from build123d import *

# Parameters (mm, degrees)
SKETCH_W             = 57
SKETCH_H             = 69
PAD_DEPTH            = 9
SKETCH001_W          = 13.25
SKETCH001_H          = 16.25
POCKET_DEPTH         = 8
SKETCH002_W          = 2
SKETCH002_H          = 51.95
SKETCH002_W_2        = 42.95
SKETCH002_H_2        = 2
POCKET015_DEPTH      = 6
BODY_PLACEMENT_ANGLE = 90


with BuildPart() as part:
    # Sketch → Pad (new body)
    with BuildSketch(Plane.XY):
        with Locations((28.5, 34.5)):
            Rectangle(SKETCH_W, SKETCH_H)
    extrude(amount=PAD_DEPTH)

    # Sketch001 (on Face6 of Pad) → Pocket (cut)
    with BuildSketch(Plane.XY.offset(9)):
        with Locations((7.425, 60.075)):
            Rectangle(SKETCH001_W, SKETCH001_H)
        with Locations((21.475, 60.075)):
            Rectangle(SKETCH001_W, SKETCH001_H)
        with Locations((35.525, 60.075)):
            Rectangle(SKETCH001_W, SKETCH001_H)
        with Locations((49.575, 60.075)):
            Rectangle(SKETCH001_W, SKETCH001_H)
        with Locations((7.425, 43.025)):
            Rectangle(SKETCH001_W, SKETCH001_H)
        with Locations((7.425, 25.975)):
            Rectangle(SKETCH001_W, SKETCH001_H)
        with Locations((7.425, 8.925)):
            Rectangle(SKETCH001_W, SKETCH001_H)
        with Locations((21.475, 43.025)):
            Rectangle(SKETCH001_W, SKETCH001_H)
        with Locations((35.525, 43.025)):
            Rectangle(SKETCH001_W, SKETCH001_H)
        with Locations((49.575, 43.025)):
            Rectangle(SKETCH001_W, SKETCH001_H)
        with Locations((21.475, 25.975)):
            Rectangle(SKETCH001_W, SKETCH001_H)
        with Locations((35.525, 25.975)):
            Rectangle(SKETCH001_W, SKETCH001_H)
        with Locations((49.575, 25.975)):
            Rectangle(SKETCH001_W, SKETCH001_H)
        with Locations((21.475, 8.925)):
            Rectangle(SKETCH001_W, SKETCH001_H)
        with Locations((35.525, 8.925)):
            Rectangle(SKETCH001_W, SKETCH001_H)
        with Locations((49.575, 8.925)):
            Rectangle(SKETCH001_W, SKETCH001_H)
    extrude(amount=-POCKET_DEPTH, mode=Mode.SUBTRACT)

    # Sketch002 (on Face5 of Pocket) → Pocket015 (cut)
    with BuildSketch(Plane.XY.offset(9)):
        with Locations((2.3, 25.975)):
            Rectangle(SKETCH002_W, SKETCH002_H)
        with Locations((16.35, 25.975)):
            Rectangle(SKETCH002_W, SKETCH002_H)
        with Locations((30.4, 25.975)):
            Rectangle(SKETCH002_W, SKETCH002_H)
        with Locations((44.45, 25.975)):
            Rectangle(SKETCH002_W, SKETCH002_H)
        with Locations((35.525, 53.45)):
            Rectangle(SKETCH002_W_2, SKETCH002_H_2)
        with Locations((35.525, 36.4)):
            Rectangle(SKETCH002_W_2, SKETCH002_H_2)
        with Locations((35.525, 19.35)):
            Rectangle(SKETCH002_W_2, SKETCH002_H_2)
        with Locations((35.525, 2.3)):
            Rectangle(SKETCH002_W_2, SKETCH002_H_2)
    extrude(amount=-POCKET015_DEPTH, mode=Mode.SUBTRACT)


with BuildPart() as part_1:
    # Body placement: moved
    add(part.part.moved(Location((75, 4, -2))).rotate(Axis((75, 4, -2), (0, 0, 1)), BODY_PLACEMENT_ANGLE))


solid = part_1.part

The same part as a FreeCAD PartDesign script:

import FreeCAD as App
import Part
import Sketcher

doc = App.newDocument("Part")
body = doc.addObject("PartDesign::Body", "Body")

# Sketch on XY plane
sketch1 = body.newObject("Sketcher::SketchObject", "Sketch")
sketch1.AttachmentSupport = (doc.getObject("XY_Plane"), [""])
sketch1.MapMode = "FlatFace"
sketch1.addGeometry([
    Part.LineSegment(App.Vector(0, 69, 0), App.Vector(0, 0, 0)),
    Part.LineSegment(App.Vector(0, 0, 0), App.Vector(57, 0, 0)),
    Part.LineSegment(App.Vector(57, 0, 0), App.Vector(57, 69, 0)),
    Part.LineSegment(App.Vector(57, 69, 0), App.Vector(0, 69, 0)),
], False)
sketch1.addConstraint([
    Sketcher.Constraint("Coincident", 0, 2, 1, 1),
    Sketcher.Constraint("Coincident", 1, 2, 2, 1),
    Sketcher.Constraint("Coincident", 2, 2, 3, 1),
    Sketcher.Constraint("Coincident", 3, 2, 0, 1),
    Sketcher.Constraint("Vertical", 0),
    Sketcher.Constraint("Horizontal", 1),
    Sketcher.Constraint("Vertical", 2),
    Sketcher.Constraint("Horizontal", 3),
    Sketcher.Constraint("Coincident", 0, 2, -1, 1),
    Sketcher.Constraint("DistanceX", 1, 1, 1, 2, 57.0),
    Sketcher.Constraint("DistanceY", 0, 2, 0, 1, 69.0),
])
pad1 = body.newObject("PartDesign::Pad", "Pad")
pad1.Profile = sketch1
pad1.Length = 9

# Sketch on XY plane
sketch2 = body.newObject("Sketcher::SketchObject", "Sketch001")
sketch2.AttachmentSupport = (doc.getObject("XY_Plane"), [""])
sketch2.MapMode = "FlatFace"
sketch2.AttachmentOffset = App.Placement(App.Vector(0, 0, 9), App.Rotation())
sketch2.addGeometry([
    Part.LineSegment(App.Vector(1, 68, 0), App.Vector(1, 52, 0)),  # 0
    Part.LineSegment(App.Vector(1, 52, 0), App.Vector(14, 52, 0)),  # 1
    Part.LineSegment(App.Vector(14, 52, 0), App.Vector(14, 68, 0)),  # 2
    Part.LineSegment(App.Vector(14, 68, 0), App.Vector(1, 68, 0)),  # 3
    Part.LineSegment(App.Vector(15, 68, 0), App.Vector(15, 52, 0)),  # 4
    Part.LineSegment(App.Vector(15, 52, 0), App.Vector(28, 52, 0)),  # 5
    Part.LineSegment(App.Vector(28, 52, 0), App.Vector(28, 68, 0)),  # 6
    Part.LineSegment(App.Vector(28, 68, 0), App.Vector(15, 68, 0)),  # 7
    Part.LineSegment(App.Vector(29, 68, 0), App.Vector(29, 52, 0)),  # 8
    Part.LineSegment(App.Vector(29, 52, 0), App.Vector(42, 52, 0)),  # 9
    Part.LineSegment(App.Vector(42, 52, 0), App.Vector(42, 68, 0)),  # 10
    Part.LineSegment(App.Vector(42, 68, 0), App.Vector(29, 68, 0)),  # 11
    Part.LineSegment(App.Vector(43, 68, 0), App.Vector(43, 52, 0)),  # 12
    Part.LineSegment(App.Vector(43, 52, 0), App.Vector(56, 52, 0)),  # 13
    Part.LineSegment(App.Vector(56, 52, 0), App.Vector(56, 68, 0)),  # 14
    Part.LineSegment(App.Vector(56, 68, 0), App.Vector(43, 68, 0)),  # 15
    Part.LineSegment(App.Vector(1, 51, 0), App.Vector(1, 35, 0)),  # 16
    Part.LineSegment(App.Vector(1, 35, 0), App.Vector(14, 35, 0)),  # 17
    Part.LineSegment(App.Vector(14, 35, 0), App.Vector(14, 51, 0)),  # 18
    Part.LineSegment(App.Vector(14, 51, 0), App.Vector(1, 51, 0)),  # 19
    Part.LineSegment(App.Vector(1, 34, 0), App.Vector(1, 18, 0)),  # 20
    Part.LineSegment(App.Vector(1, 18, 0), App.Vector(14, 18, 0)),  # 21
    Part.LineSegment(App.Vector(14, 18, 0), App.Vector(14, 34, 0)),  # 22
    Part.LineSegment(App.Vector(14, 34, 0), App.Vector(1, 34, 0)),  # 23
    Part.LineSegment(App.Vector(1, 17, 0), App.Vector(1, 1, 0)),  # 24
    Part.LineSegment(App.Vector(1, 1, 0), App.Vector(14, 1, 0)),  # 25
    Part.LineSegment(App.Vector(14, 1, 0), App.Vector(14, 17, 0)),  # 26
    Part.LineSegment(App.Vector(14, 17, 0), App.Vector(1, 17, 0)),  # 27
    Part.LineSegment(App.Vector(15, 51, 0), App.Vector(15, 35, 0)),  # 28
    Part.LineSegment(App.Vector(15, 35, 0), App.Vector(28, 35, 0)),  # 29
    Part.LineSegment(App.Vector(28, 35, 0), App.Vector(28, 51, 0)),  # 30
    Part.LineSegment(App.Vector(28, 51, 0), App.Vector(15, 51, 0)),  # 31
    Part.LineSegment(App.Vector(29, 51, 0), App.Vector(29, 35, 0)),  # 32
    Part.LineSegment(App.Vector(29, 35, 0), App.Vector(42, 35, 0)),  # 33
    Part.LineSegment(App.Vector(42, 35, 0), App.Vector(42, 51, 0)),  # 34
    Part.LineSegment(App.Vector(42, 51, 0), App.Vector(29, 51, 0)),  # 35
    Part.LineSegment(App.Vector(43, 51, 0), App.Vector(43, 35, 0)),  # 36
    Part.LineSegment(App.Vector(43, 35, 0), App.Vector(56, 35, 0)),  # 37
    Part.LineSegment(App.Vector(56, 35, 0), App.Vector(56, 51, 0)),  # 38
    Part.LineSegment(App.Vector(56, 51, 0), App.Vector(43, 51, 0)),  # 39
    Part.LineSegment(App.Vector(15, 34, 0), App.Vector(15, 18, 0)),  # 40
    Part.LineSegment(App.Vector(15, 18, 0), App.Vector(28, 18, 0)),  # 41
    Part.LineSegment(App.Vector(28, 18, 0), App.Vector(28, 34, 0)),  # 42
    Part.LineSegment(App.Vector(28, 34, 0), App.Vector(15, 34, 0)),  # 43
    Part.LineSegment(App.Vector(29, 34, 0), App.Vector(29, 18, 0)),  # 44
    Part.LineSegment(App.Vector(29, 18, 0), App.Vector(42, 18, 0)),  # 45
    Part.LineSegment(App.Vector(42, 18, 0), App.Vector(42, 34, 0)),  # 46
    Part.LineSegment(App.Vector(42, 34, 0), App.Vector(29, 34, 0)),  # 47
    Part.LineSegment(App.Vector(43, 34, 0), App.Vector(43, 18, 0)),  # 48
    Part.LineSegment(App.Vector(43, 18, 0), App.Vector(56, 18, 0)),  # 49
    Part.LineSegment(App.Vector(56, 18, 0), App.Vector(56, 34, 0)),  # 50
    Part.LineSegment(App.Vector(56, 34, 0), App.Vector(43, 34, 0)),  # 51
    Part.LineSegment(App.Vector(15, 17, 0), App.Vector(15, 1, 0)),  # 52
    Part.LineSegment(App.Vector(15, 1, 0), App.Vector(28, 1, 0)),  # 53
    Part.LineSegment(App.Vector(28, 1, 0), App.Vector(28, 17, 0)),  # 54
    Part.LineSegment(App.Vector(28, 17, 0), App.Vector(15, 17, 0)),  # 55
    Part.LineSegment(App.Vector(29, 17, 0), App.Vector(29, 1, 0)),  # 56
    Part.LineSegment(App.Vector(29, 1, 0), App.Vector(42, 1, 0)),  # 57
    Part.LineSegment(App.Vector(42, 1, 0), App.Vector(42, 17, 0)),  # 58
    Part.LineSegment(App.Vector(42, 17, 0), App.Vector(29, 17, 0)),  # 59
    Part.LineSegment(App.Vector(43, 17, 0), App.Vector(43, 1, 0)),  # 60
    Part.LineSegment(App.Vector(43, 1, 0), App.Vector(56, 1, 0)),  # 61
    Part.LineSegment(App.Vector(56, 1, 0), App.Vector(56, 17, 0)),  # 62
    Part.LineSegment(App.Vector(56, 17, 0), App.Vector(43, 17, 0)),  # 63
], False)
sketch2.addConstraint([
    Sketcher.Constraint("Coincident", 0, 2, 1, 1),
    Sketcher.Constraint("Coincident", 1, 2, 2, 1),
    Sketcher.Constraint("Coincident", 2, 2, 3, 1),
    Sketcher.Constraint("Coincident", 3, 2, 0, 1),
    Sketcher.Constraint("Coincident", 4, 2, 5, 1),
    Sketcher.Constraint("Coincident", 5, 2, 6, 1),
    Sketcher.Constraint("Coincident", 6, 2, 7, 1),
    Sketcher.Constraint("Coincident", 7, 2, 4, 1),
    Sketcher.Constraint("Coincident", 8, 2, 9, 1),
    Sketcher.Constraint("Coincident", 9, 2, 10, 1),
    Sketcher.Constraint("Coincident", 10, 2, 11, 1),
    Sketcher.Constraint("Coincident", 11, 2, 8, 1),
    Sketcher.Constraint("Coincident", 12, 2, 13, 1),
    Sketcher.Constraint("Coincident", 13, 2, 14, 1),
    Sketcher.Constraint("Coincident", 14, 2, 15, 1),
    Sketcher.Constraint("Coincident", 15, 2, 12, 1),
    Sketcher.Constraint("Coincident", 16, 2, 17, 1),
    Sketcher.Constraint("Coincident", 17, 2, 18, 1),
    Sketcher.Constraint("Coincident", 18, 2, 19, 1),
    Sketcher.Constraint("Coincident", 19, 2, 16, 1),
    Sketcher.Constraint("Coincident", 20, 2, 21, 1),
    Sketcher.Constraint("Coincident", 21, 2, 22, 1),
    Sketcher.Constraint("Coincident", 22, 2, 23, 1),
    Sketcher.Constraint("Coincident", 23, 2, 20, 1),
    Sketcher.Constraint("Coincident", 24, 2, 25, 1),
    Sketcher.Constraint("Coincident", 25, 2, 26, 1),
    Sketcher.Constraint("Coincident", 26, 2, 27, 1),
    Sketcher.Constraint("Coincident", 27, 2, 24, 1),
    Sketcher.Constraint("Coincident", 28, 2, 29, 1),
    Sketcher.Constraint("Coincident", 29, 2, 30, 1),
    Sketcher.Constraint("Coincident", 30, 2, 31, 1),
    Sketcher.Constraint("Coincident", 31, 2, 28, 1),
    Sketcher.Constraint("Coincident", 32, 2, 33, 1),
    Sketcher.Constraint("Coincident", 33, 2, 34, 1),
    Sketcher.Constraint("Coincident", 34, 2, 35, 1),
    Sketcher.Constraint("Coincident", 35, 2, 32, 1),
    Sketcher.Constraint("Coincident", 36, 2, 37, 1),
    Sketcher.Constraint("Coincident", 37, 2, 38, 1),
    Sketcher.Constraint("Coincident", 38, 2, 39, 1),
    Sketcher.Constraint("Coincident", 39, 2, 36, 1),
    Sketcher.Constraint("Coincident", 40, 2, 41, 1),
    Sketcher.Constraint("Coincident", 41, 2, 42, 1),
    Sketcher.Constraint("Coincident", 42, 2, 43, 1),
    Sketcher.Constraint("Coincident", 43, 2, 40, 1),
    Sketcher.Constraint("Coincident", 44, 2, 45, 1),
    Sketcher.Constraint("Coincident", 45, 2, 46, 1),
    Sketcher.Constraint("Coincident", 46, 2, 47, 1),
    Sketcher.Constraint("Coincident", 47, 2, 44, 1),
    Sketcher.Constraint("Coincident", 48, 2, 49, 1),
    Sketcher.Constraint("Coincident", 49, 2, 50, 1),
    Sketcher.Constraint("Coincident", 50, 2, 51, 1),
    Sketcher.Constraint("Coincident", 51, 2, 48, 1),
    Sketcher.Constraint("Coincident", 52, 2, 53, 1),
    Sketcher.Constraint("Coincident", 53, 2, 54, 1),
    Sketcher.Constraint("Coincident", 54, 2, 55, 1),
    Sketcher.Constraint("Coincident", 55, 2, 52, 1),
    Sketcher.Constraint("Coincident", 56, 2, 57, 1),
    Sketcher.Constraint("Coincident", 57, 2, 58, 1),
    Sketcher.Constraint("Coincident", 58, 2, 59, 1),
    Sketcher.Constraint("Coincident", 59, 2, 56, 1),
    Sketcher.Constraint("Coincident", 60, 2, 61, 1),
    Sketcher.Constraint("Coincident", 61, 2, 62, 1),
    Sketcher.Constraint("Coincident", 62, 2, 63, 1),
    Sketcher.Constraint("Coincident", 63, 2, 60, 1),
    Sketcher.Constraint("Vertical", 0),
    Sketcher.Constraint("Horizontal", 1),
    Sketcher.Constraint("Vertical", 2),
    Sketcher.Constraint("Horizontal", 3),
    Sketcher.Constraint("Vertical", 4),
    Sketcher.Constraint("Horizontal", 5),
    Sketcher.Constraint("Vertical", 6),
    Sketcher.Constraint("Horizontal", 7),
    Sketcher.Constraint("Vertical", 8),
    Sketcher.Constraint("Horizontal", 9),
    Sketcher.Constraint("Vertical", 10),
    Sketcher.Constraint("Horizontal", 11),
    Sketcher.Constraint("Vertical", 12),
    Sketcher.Constraint("Horizontal", 13),
    Sketcher.Constraint("Vertical", 14),
    Sketcher.Constraint("Horizontal", 15),
    Sketcher.Constraint("Vertical", 16),
    Sketcher.Constraint("Horizontal", 17),
    Sketcher.Constraint("Vertical", 18),
    Sketcher.Constraint("Horizontal", 19),
    Sketcher.Constraint("Vertical", 20),
    Sketcher.Constraint("Horizontal", 21),
    Sketcher.Constraint("Vertical", 22),
    Sketcher.Constraint("Horizontal", 23),
    Sketcher.Constraint("Vertical", 24),
    Sketcher.Constraint("Horizontal", 25),
    Sketcher.Constraint("Vertical", 26),
    Sketcher.Constraint("Horizontal", 27),
    Sketcher.Constraint("Vertical", 28),
    Sketcher.Constraint("Horizontal", 29),
    Sketcher.Constraint("Vertical", 30),
    Sketcher.Constraint("Horizontal", 31),
    Sketcher.Constraint("Vertical", 32),
    Sketcher.Constraint("Horizontal", 33),
    Sketcher.Constraint("Vertical", 34),
    Sketcher.Constraint("Horizontal", 35),
    Sketcher.Constraint("Vertical", 36),
    Sketcher.Constraint("Horizontal", 37),
    Sketcher.Constraint("Vertical", 38),
    Sketcher.Constraint("Horizontal", 39),
    Sketcher.Constraint("Vertical", 40),
    Sketcher.Constraint("Horizontal", 41),
    Sketcher.Constraint("Vertical", 42),
    Sketcher.Constraint("Horizontal", 43),
    Sketcher.Constraint("Vertical", 44),
    Sketcher.Constraint("Horizontal", 45),
    Sketcher.Constraint("Vertical", 46),
    Sketcher.Constraint("Horizontal", 47),
    Sketcher.Constraint("Vertical", 48),
    Sketcher.Constraint("Horizontal", 49),
    Sketcher.Constraint("Vertical", 50),
    Sketcher.Constraint("Horizontal", 51),
    Sketcher.Constraint("Vertical", 52),
    Sketcher.Constraint("Horizontal", 53),
    Sketcher.Constraint("Vertical", 54),
    Sketcher.Constraint("Horizontal", 55),
    Sketcher.Constraint("Vertical", 56),
    Sketcher.Constraint("Horizontal", 57),
    Sketcher.Constraint("Vertical", 58),
    Sketcher.Constraint("Horizontal", 59),
    Sketcher.Constraint("Vertical", 60),
    Sketcher.Constraint("Horizontal", 61),
    Sketcher.Constraint("Vertical", 62),
    Sketcher.Constraint("Horizontal", 63),
    Sketcher.Constraint("Horizontal", 1, 2, 4, 2),
    Sketcher.Constraint("Horizontal", 3, 2, 6, 2),
    Sketcher.Constraint("Horizontal", 5, 2, 8, 2),
    Sketcher.Constraint("Horizontal", 7, 2, 10, 2),
    Sketcher.Constraint("Horizontal", 9, 2, 12, 2),
    Sketcher.Constraint("Horizontal", 11, 2, 14, 2),
    Sketcher.Constraint("Horizontal", 17, 2, 28, 2),
    Sketcher.Constraint("Horizontal", 19, 2, 30, 2),
    Sketcher.Constraint("Horizontal", 29, 2, 32, 2),
    Sketcher.Constraint("Horizontal", 31, 2, 34, 2),
    Sketcher.Constraint("Horizontal", 33, 2, 36, 2),
    Sketcher.Constraint("Horizontal", 35, 2, 38, 2),
    Sketcher.Constraint("Horizontal", 21, 2, 40, 2),
    Sketcher.Constraint("Horizontal", 23, 2, 42, 2),
    Sketcher.Constraint("Horizontal", 41, 2, 44, 2),
    Sketcher.Constraint("Horizontal", 43, 2, 46, 2),
    Sketcher.Constraint("Horizontal", 45, 2, 48, 2),
    Sketcher.Constraint("Horizontal", 47, 2, 50, 2),
    Sketcher.Constraint("Horizontal", 25, 2, 52, 2),
    Sketcher.Constraint("Horizontal", 27, 2, 54, 2),
    Sketcher.Constraint("Horizontal", 53, 2, 56, 2),
    Sketcher.Constraint("Horizontal", 55, 2, 58, 2),
    Sketcher.Constraint("Horizontal", 57, 2, 60, 2),
    Sketcher.Constraint("Horizontal", 59, 2, 62, 2),
    Sketcher.Constraint("Vertical", 3, 2, 16, 2),
    Sketcher.Constraint("Vertical", 2, 2, 17, 2),
    Sketcher.Constraint("Vertical", 19, 2, 20, 2),
    Sketcher.Constraint("Vertical", 18, 2, 21, 2),
    Sketcher.Constraint("Vertical", 23, 2, 24, 2),
    Sketcher.Constraint("Vertical", 22, 2, 25, 2),
    Sketcher.Constraint("Vertical", 7, 2, 28, 2),
    Sketcher.Constraint("Vertical", 6, 2, 29, 2),
    Sketcher.Constraint("Vertical", 11, 2, 32, 2),
    Sketcher.Constraint("Vertical", 10, 2, 33, 2),
    Sketcher.Constraint("Vertical", 15, 2, 36, 2),
    Sketcher.Constraint("Vertical", 14, 2, 37, 2),
    Sketcher.Constraint("Vertical", 31, 2, 40, 2),
    Sketcher.Constraint("Vertical", 30, 2, 41, 2),
    Sketcher.Constraint("Vertical", 35, 2, 44, 2),
    Sketcher.Constraint("Vertical", 34, 2, 45, 2),
    Sketcher.Constraint("Vertical", 39, 2, 48, 2),
    Sketcher.Constraint("Vertical", 38, 2, 49, 2),
    Sketcher.Constraint("Vertical", 43, 2, 52, 2),
    Sketcher.Constraint("Vertical", 42, 2, 53, 2),
    Sketcher.Constraint("Vertical", 47, 2, 56, 2),
    Sketcher.Constraint("Vertical", 46, 2, 57, 2),
    Sketcher.Constraint("Vertical", 51, 2, 60, 2),
    Sketcher.Constraint("Vertical", 50, 2, 61, 2),
    Sketcher.Constraint("Equal", 3, 5),
    Sketcher.Constraint("Equal", 7, 9),
    Sketcher.Constraint("Equal", 11, 13),
    Sketcher.Constraint("Equal", 14, 16),
    Sketcher.Constraint("Equal", 18, 20),
    Sketcher.Constraint("Equal", 22, 24),
    Sketcher.Constraint("DistanceX", 1, 1, 1, 2, 13.25),
    Sketcher.Constraint("DistanceY", 0, 2, 0, 1, 16.25),
    Sketcher.Constraint("DistanceX", -1, 1, 0, 2, 0.8),
    Sketcher.Constraint("DistanceY", -1, 1, 2, 2, 68.2),
    Sketcher.Constraint("DistanceX", -1, 1, 5, 2, 28.1),
    Sketcher.Constraint("DistanceX", -1, 1, 8, 2, 28.9),
    Sketcher.Constraint("DistanceX", -1, 1, 13, 2, 56.2),
    Sketcher.Constraint("DistanceY", -1, 1, 16, 2, 34.9),
    Sketcher.Constraint("DistanceY", -1, 1, 22, 2, 34.1),
    Sketcher.Constraint("DistanceY", -1, 1, 24, 2, 0.8),
])
pocket1 = body.newObject("PartDesign::Pocket", "Pocket")
pocket1.Profile = sketch2
pocket1.Length = 8

# Sketch on XY plane
sketch3 = body.newObject("Sketcher::SketchObject", "Sketch002")
sketch3.AttachmentSupport = (doc.getObject("XY_Plane"), [""])
sketch3.MapMode = "FlatFace"
sketch3.AttachmentOffset = App.Placement(App.Vector(0, 0, 9), App.Rotation())
sketch3.addGeometry([
    Part.LineSegment(App.Vector(1.3, 52, 0), App.Vector(1.3, 0, 0)),  # 0
    Part.LineSegment(App.Vector(1.3, 0, 0), App.Vector(3.3, 0, 0)),  # 1
    Part.LineSegment(App.Vector(3.3, 0, 0), App.Vector(3.3, 52, 0)),  # 2
    Part.LineSegment(App.Vector(3.3, 52, 0), App.Vector(1.3, 52, 0)),  # 3
    Part.LineSegment(App.Vector(15.3, 1.3, 0), App.Vector(15.3, 0, 0)),  # 4
    Part.LineSegment(App.Vector(15.3, 0, 0), App.Vector(17.4, 0, 0)),  # 5
    Part.LineSegment(App.Vector(17.4, 0, 0), App.Vector(17.4, 1.3, 0)),  # 6
    Part.LineSegment(App.Vector(17.4, 1.3, 0), App.Vector(29.4, 1.3, 0)),  # 7
    Part.LineSegment(App.Vector(29.4, 1.3, 0), App.Vector(29.4, 0, 0)),  # 8
    Part.LineSegment(App.Vector(29.4, 0, 0), App.Vector(31.4, 0, 0)),  # 9
    Part.LineSegment(App.Vector(31.4, 0, 0), App.Vector(31.4, 1.3, 0)),  # 10
    Part.LineSegment(App.Vector(31.4, 1.3, 0), App.Vector(43.5, 1.3, 0)),  # 11
    Part.LineSegment(App.Vector(43.5, 1.3, 0), App.Vector(43.5, 0, 0)),  # 12
    Part.LineSegment(App.Vector(43.5, 0, 0), App.Vector(45.5, 0, 0)),  # 13
    Part.LineSegment(App.Vector(45.5, 0, 0), App.Vector(45.5, 1.3, 0)),  # 14
    Part.LineSegment(App.Vector(45.5, 1.3, 0), App.Vector(57, 1.3, 0)),  # 15
    Part.LineSegment(App.Vector(57, 1.3, 0), App.Vector(57, 3.3, 0)),  # 16
    Part.LineSegment(App.Vector(57, 3.3, 0), App.Vector(45.5, 3.3, 0)),  # 17
    Part.LineSegment(App.Vector(45.5, 3.3, 0), App.Vector(45.5, 18.4, 0)),  # 18
    Part.LineSegment(App.Vector(45.5, 18.4, 0), App.Vector(57, 18.4, 0)),  # 19
    Part.LineSegment(App.Vector(57, 18.4, 0), App.Vector(57, 20.4, 0)),  # 20
    Part.LineSegment(App.Vector(57, 20.4, 0), App.Vector(45.5, 20.4, 0)),  # 21
    Part.LineSegment(App.Vector(45.5, 20.4, 0), App.Vector(45.5, 35.4, 0)),  # 22
    Part.LineSegment(App.Vector(45.5, 35.4, 0), App.Vector(57, 35.4, 0)),  # 23
    Part.LineSegment(App.Vector(57, 35.4, 0), App.Vector(57, 37.4, 0)),  # 24
    Part.LineSegment(App.Vector(57, 37.4, 0), App.Vector(45.5, 37.4, 0)),  # 25
    Part.LineSegment(App.Vector(45.5, 37.4, 0), App.Vector(45.5, 52, 0)),  # 26
    Part.LineSegment(App.Vector(45.5, 52, 0), App.Vector(43.5, 52, 0)),  # 27
    Part.LineSegment(App.Vector(43.5, 52, 0), App.Vector(43.5, 37.4, 0)),  # 28
    Part.LineSegment(App.Vector(43.5, 37.4, 0), App.Vector(31.4, 37.4, 0)),  # 29
    Part.LineSegment(App.Vector(31.4, 37.4, 0), App.Vector(31.4, 52, 0)),  # 30
    Part.LineSegment(App.Vector(31.4, 52, 0), App.Vector(29.4, 52, 0)),  # 31
    Part.LineSegment(App.Vector(29.4, 52, 0), App.Vector(29.4, 37.4, 0)),  # 32
    Part.LineSegment(App.Vector(29.4, 37.4, 0), App.Vector(17.4, 37.4, 0)),  # 33
    Part.LineSegment(App.Vector(17.4, 37.4, 0), App.Vector(17.4, 52, 0)),  # 34
    Part.LineSegment(App.Vector(17.4, 52, 0), App.Vector(15.3, 52, 0)),  # 35
    Part.LineSegment(App.Vector(15.3, 52, 0), App.Vector(15.3, 37.4, 0)),  # 36
    Part.LineSegment(App.Vector(15.3, 37.4, 0), App.Vector(14.1, 37.4, 0)),  # 37
    Part.LineSegment(App.Vector(14.1, 37.4, 0), App.Vector(14.1, 35.4, 0)),  # 38
    Part.LineSegment(App.Vector(14.1, 35.4, 0), App.Vector(15.3, 35.4, 0)),  # 39
    Part.LineSegment(App.Vector(15.3, 35.4, 0), App.Vector(15.3, 20.4, 0)),  # 40
    Part.LineSegment(App.Vector(15.3, 20.4, 0), App.Vector(14.1, 20.4, 0)),  # 41
    Part.LineSegment(App.Vector(14.1, 20.4, 0), App.Vector(14.1, 18.4, 0)),  # 42
    Part.LineSegment(App.Vector(14.1, 18.4, 0), App.Vector(15.3, 18.4, 0)),  # 43
    Part.LineSegment(App.Vector(15.3, 18.4, 0), App.Vector(15.3, 3.3, 0)),  # 44
    Part.LineSegment(App.Vector(15.3, 3.3, 0), App.Vector(14.1, 3.3, 0)),  # 45
    Part.LineSegment(App.Vector(14.1, 3.3, 0), App.Vector(14.1, 1.3, 0)),  # 46
    Part.LineSegment(App.Vector(14.1, 1.3, 0), App.Vector(15.3, 1.3, 0)),  # 47
    Part.LineSegment(App.Vector(43.5, 18.4, 0), App.Vector(43.5, 3.3, 0)),  # 48
    Part.LineSegment(App.Vector(43.5, 3.3, 0), App.Vector(31.4, 3.3, 0)),  # 49
    Part.LineSegment(App.Vector(31.4, 3.3, 0), App.Vector(31.4, 18.4, 0)),  # 50
    Part.LineSegment(App.Vector(31.4, 18.4, 0), App.Vector(43.5, 18.4, 0)),  # 51
    Part.LineSegment(App.Vector(29.4, 18.4, 0), App.Vector(29.4, 3.3, 0)),  # 52
    Part.LineSegment(App.Vector(29.4, 3.3, 0), App.Vector(17.4, 3.3, 0)),  # 53
    Part.LineSegment(App.Vector(17.4, 3.3, 0), App.Vector(17.4, 18.4, 0)),  # 54
    Part.LineSegment(App.Vector(17.4, 18.4, 0), App.Vector(29.4, 18.4, 0)),  # 55
    Part.LineSegment(App.Vector(31.4, 20.4, 0), App.Vector(31.4, 35.4, 0)),  # 56
    Part.LineSegment(App.Vector(31.4, 35.4, 0), App.Vector(43.5, 35.4, 0)),  # 57
    Part.LineSegment(App.Vector(43.5, 35.4, 0), App.Vector(43.5, 20.4, 0)),  # 58
    Part.LineSegment(App.Vector(43.5, 20.4, 0), App.Vector(31.4, 20.4, 0)),  # 59
    Part.LineSegment(App.Vector(29.4, 35.4, 0), App.Vector(29.4, 20.4, 0)),  # 60
    Part.LineSegment(App.Vector(29.4, 20.4, 0), App.Vector(17.4, 20.4, 0)),  # 61
    Part.LineSegment(App.Vector(17.4, 20.4, 0), App.Vector(17.4, 35.4, 0)),  # 62
    Part.LineSegment(App.Vector(17.4, 35.4, 0), App.Vector(29.4, 35.4, 0)),  # 63
    Part.LineSegment(App.Vector(14.1, 54.5, 0), App.Vector(14.1, 52.5, 0)),  # 64
    Part.LineSegment(App.Vector(14.1, 52.5, 0), App.Vector(57, 52.5, 0)),  # 65
    Part.LineSegment(App.Vector(57, 52.5, 0), App.Vector(57, 54.5, 0)),  # 66
    Part.LineSegment(App.Vector(57, 54.5, 0), App.Vector(14.1, 54.5, 0)),  # 67
], False)
sketch3.addConstraint([
    Sketcher.Constraint("Coincident", 0, 2, 1, 1),
    Sketcher.Constraint("Coincident", 1, 2, 2, 1),
    Sketcher.Constraint("Coincident", 2, 2, 3, 1),
    Sketcher.Constraint("Coincident", 3, 2, 0, 1),
    Sketcher.Constraint("Coincident", 4, 2, 5, 1),
    Sketcher.Constraint("Coincident", 5, 2, 6, 1),
    Sketcher.Constraint("Coincident", 6, 2, 7, 1),
    Sketcher.Constraint("Coincident", 7, 2, 8, 1),
    Sketcher.Constraint("Coincident", 8, 2, 9, 1),
    Sketcher.Constraint("Coincident", 9, 2, 10, 1),
    Sketcher.Constraint("Coincident", 10, 2, 11, 1),
    Sketcher.Constraint("Coincident", 11, 2, 12, 1),
    Sketcher.Constraint("Coincident", 12, 2, 13, 1),
    Sketcher.Constraint("Coincident", 13, 2, 14, 1),
    Sketcher.Constraint("Coincident", 14, 2, 15, 1),
    Sketcher.Constraint("Coincident", 15, 2, 16, 1),
    Sketcher.Constraint("Coincident", 16, 2, 17, 1),
    Sketcher.Constraint("Coincident", 17, 2, 18, 1),
    Sketcher.Constraint("Coincident", 18, 2, 19, 1),
    Sketcher.Constraint("Coincident", 19, 2, 20, 1),
    Sketcher.Constraint("Coincident", 20, 2, 21, 1),
    Sketcher.Constraint("Coincident", 21, 2, 22, 1),
    Sketcher.Constraint("Coincident", 22, 2, 23, 1),
    Sketcher.Constraint("Coincident", 23, 2, 24, 1),
    Sketcher.Constraint("Coincident", 24, 2, 25, 1),
    Sketcher.Constraint("Coincident", 25, 2, 26, 1),
    Sketcher.Constraint("Coincident", 26, 2, 27, 1),
    Sketcher.Constraint("Coincident", 27, 2, 28, 1),
    Sketcher.Constraint("Coincident", 28, 2, 29, 1),
    Sketcher.Constraint("Coincident", 29, 2, 30, 1),
    Sketcher.Constraint("Coincident", 30, 2, 31, 1),
    Sketcher.Constraint("Coincident", 31, 2, 32, 1),
    Sketcher.Constraint("Coincident", 32, 2, 33, 1),
    Sketcher.Constraint("Coincident", 33, 2, 34, 1),
    Sketcher.Constraint("Coincident", 34, 2, 35, 1),
    Sketcher.Constraint("Coincident", 35, 2, 36, 1),
    Sketcher.Constraint("Coincident", 36, 2, 37, 1),
    Sketcher.Constraint("Coincident", 37, 2, 38, 1),
    Sketcher.Constraint("Coincident", 38, 2, 39, 1),
    Sketcher.Constraint("Coincident", 39, 2, 40, 1),
    Sketcher.Constraint("Coincident", 40, 2, 41, 1),
    Sketcher.Constraint("Coincident", 41, 2, 42, 1),
    Sketcher.Constraint("Coincident", 42, 2, 43, 1),
    Sketcher.Constraint("Coincident", 43, 2, 44, 1),
    Sketcher.Constraint("Coincident", 44, 2, 45, 1),
    Sketcher.Constraint("Coincident", 45, 2, 46, 1),
    Sketcher.Constraint("Coincident", 46, 2, 47, 1),
    Sketcher.Constraint("Coincident", 47, 2, 4, 1),
    Sketcher.Constraint("Coincident", 48, 2, 49, 1),
    Sketcher.Constraint("Coincident", 49, 2, 50, 1),
    Sketcher.Constraint("Coincident", 50, 2, 51, 1),
    Sketcher.Constraint("Coincident", 51, 2, 48, 1),
    Sketcher.Constraint("Coincident", 52, 2, 53, 1),
    Sketcher.Constraint("Coincident", 53, 2, 54, 1),
    Sketcher.Constraint("Coincident", 54, 2, 55, 1),
    Sketcher.Constraint("Coincident", 55, 2, 52, 1),
    Sketcher.Constraint("Coincident", 56, 2, 57, 1),
    Sketcher.Constraint("Coincident", 57, 2, 58, 1),
    Sketcher.Constraint("Coincident", 58, 2, 59, 1),
    Sketcher.Constraint("Coincident", 59, 2, 56, 1),
    Sketcher.Constraint("Coincident", 60, 2, 61, 1),
    Sketcher.Constraint("Coincident", 61, 2, 62, 1),
    Sketcher.Constraint("Coincident", 62, 2, 63, 1),
    Sketcher.Constraint("Coincident", 63, 2, 60, 1),
    Sketcher.Constraint("Coincident", 64, 2, 65, 1),
    Sketcher.Constraint("Coincident", 65, 2, 66, 1),
    Sketcher.Constraint("Coincident", 66, 2, 67, 1),
    Sketcher.Constraint("Coincident", 67, 2, 64, 1),
    Sketcher.Constraint("Vertical", 0),
    Sketcher.Constraint("Horizontal", 1),
    Sketcher.Constraint("Vertical", 2),
    Sketcher.Constraint("Horizontal", 3),
    Sketcher.Constraint("Vertical", 4),
    Sketcher.Constraint("Horizontal", 5),
    Sketcher.Constraint("Vertical", 6),
    Sketcher.Constraint("Horizontal", 7),
    Sketcher.Constraint("Vertical", 8),
    Sketcher.Constraint("Horizontal", 9),
    Sketcher.Constraint("Vertical", 10),
    Sketcher.Constraint("Horizontal", 11),
    Sketcher.Constraint("Vertical", 12),
    Sketcher.Constraint("Horizontal", 13),
    Sketcher.Constraint("Vertical", 14),
    Sketcher.Constraint("Horizontal", 15),
    Sketcher.Constraint("Vertical", 16),
    Sketcher.Constraint("Horizontal", 17),
    Sketcher.Constraint("Vertical", 18),
    Sketcher.Constraint("Horizontal", 19),
    Sketcher.Constraint("Vertical", 20),
    Sketcher.Constraint("Horizontal", 21),
    Sketcher.Constraint("Vertical", 22),
    Sketcher.Constraint("Horizontal", 23),
    Sketcher.Constraint("Vertical", 24),
    Sketcher.Constraint("Horizontal", 25),
    Sketcher.Constraint("Vertical", 26),
    Sketcher.Constraint("Horizontal", 27),
    Sketcher.Constraint("Vertical", 28),
    Sketcher.Constraint("Horizontal", 29),
    Sketcher.Constraint("Vertical", 30),
    Sketcher.Constraint("Horizontal", 31),
    Sketcher.Constraint("Vertical", 32),
    Sketcher.Constraint("Horizontal", 33),
    Sketcher.Constraint("Vertical", 34),
    Sketcher.Constraint("Horizontal", 35),
    Sketcher.Constraint("Vertical", 36),
    Sketcher.Constraint("Horizontal", 37),
    Sketcher.Constraint("Vertical", 38),
    Sketcher.Constraint("Horizontal", 39),
    Sketcher.Constraint("Vertical", 40),
    Sketcher.Constraint("Horizontal", 41),
    Sketcher.Constraint("Vertical", 42),
    Sketcher.Constraint("Horizontal", 43),
    Sketcher.Constraint("Vertical", 44),
    Sketcher.Constraint("Horizontal", 45),
    Sketcher.Constraint("Vertical", 46),
    Sketcher.Constraint("Horizontal", 47),
    Sketcher.Constraint("Vertical", 48),
    Sketcher.Constraint("Horizontal", 49),
    Sketcher.Constraint("Vertical", 50),
    Sketcher.Constraint("Horizontal", 51),
    Sketcher.Constraint("Vertical", 52),
    Sketcher.Constraint("Horizontal", 53),
    Sketcher.Constraint("Vertical", 54),
    Sketcher.Constraint("Horizontal", 55),
    Sketcher.Constraint("Vertical", 56),
    Sketcher.Constraint("Horizontal", 57),
    Sketcher.Constraint("Vertical", 58),
    Sketcher.Constraint("Horizontal", 59),
    Sketcher.Constraint("Vertical", 60),
    Sketcher.Constraint("Horizontal", 61),
    Sketcher.Constraint("Vertical", 62),
    Sketcher.Constraint("Horizontal", 63),
    Sketcher.Constraint("Vertical", 64),
    Sketcher.Constraint("Horizontal", 65),
    Sketcher.Constraint("Vertical", 66),
    Sketcher.Constraint("Horizontal", 67),
    Sketcher.Constraint("PointOnObject", 0, 2, -1),
    Sketcher.Constraint("PointOnObject", 4, 2, -1),
    Sketcher.Constraint("PointOnObject", 8, 2, -1),
    Sketcher.Constraint("PointOnObject", 12, 2, -1),
    Sketcher.Constraint("Horizontal", 7, 2, 10, 2),
    Sketcher.Constraint("Horizontal", 11, 2, 14, 2),
    Sketcher.Constraint("Horizontal", 3, 2, 26, 2),
    Sketcher.Constraint("Horizontal", 25, 2, 28, 2),
    Sketcher.Constraint("Horizontal", 27, 2, 30, 2),
    Sketcher.Constraint("Horizontal", 29, 2, 32, 2),
    Sketcher.Constraint("Horizontal", 31, 2, 34, 2),
    Sketcher.Constraint("Horizontal", 33, 2, 36, 2),
    Sketcher.Constraint("Horizontal", 23, 2, 38, 2),
    Sketcher.Constraint("Horizontal", 21, 2, 40, 2),
    Sketcher.Constraint("Horizontal", 19, 2, 42, 2),
    Sketcher.Constraint("Horizontal", 17, 2, 44, 2),
    Sketcher.Constraint("Horizontal", 15, 2, 46, 2),
    Sketcher.Constraint("Horizontal", 45, 2, 48, 2),
    Sketcher.Constraint("Horizontal", 43, 2, 50, 2),
    Sketcher.Constraint("Horizontal", 49, 2, 52, 2),
    Sketcher.Constraint("Horizontal", 51, 2, 54, 2),
    Sketcher.Constraint("Horizontal", 39, 2, 56, 2),
    Sketcher.Constraint("Horizontal", 41, 2, 58, 2),
    Sketcher.Constraint("Horizontal", 59, 2, 60, 2),
    Sketcher.Constraint("Horizontal", 57, 2, 62, 2),
    Sketcher.Constraint("Vertical", 14, 2, 17, 2),
    Sketcher.Constraint("Vertical", 16, 2, 19, 2),
    Sketcher.Constraint("Vertical", 18, 2, 21, 2),
    Sketcher.Constraint("Vertical", 20, 2, 23, 2),
    Sketcher.Constraint("Vertical", 22, 2, 25, 2),
    Sketcher.Constraint("Vertical", 12, 2, 27, 2),
    Sketcher.Constraint("Vertical", 10, 2, 29, 2),
    Sketcher.Constraint("Vertical", 8, 2, 31, 2),
    Sketcher.Constraint("Vertical", 6, 2, 33, 2),
    Sketcher.Constraint("Vertical", 4, 2, 35, 2),
    Sketcher.Constraint("Vertical", 36, 2, 39, 2),
    Sketcher.Constraint("Vertical", 38, 2, 41, 2),
    Sketcher.Constraint("Vertical", 40, 2, 43, 2),
    Sketcher.Constraint("Vertical", 42, 2, 45, 2),
    Sketcher.Constraint("Vertical", 28, 2, 48, 2),
    Sketcher.Constraint("Vertical", 30, 2, 49, 2),
    Sketcher.Constraint("Vertical", 32, 2, 52, 2),
    Sketcher.Constraint("Vertical", 34, 2, 53, 2),
    Sketcher.Constraint("Vertical", 50, 2, 56, 2),
    Sketcher.Constraint("Vertical", 51, 2, 57, 2),
    Sketcher.Constraint("Vertical", 55, 2, 60, 2),
    Sketcher.Constraint("Vertical", 54, 2, 61, 2),
    Sketcher.Constraint("Vertical", 46, 2, 64, 2),
    Sketcher.Constraint("Vertical", 24, 2, 65, 2),
    Sketcher.Constraint("Equal", 3, 5),
    Sketcher.Constraint("Equal", 5, 9),
    Sketcher.Constraint("Equal", 7, 11),
    Sketcher.Constraint("Equal", 9, 13),
    Sketcher.Constraint("Equal", 47, 4),
    Sketcher.Constraint("Equal", 35, 16),
    Sketcher.Constraint("Equal", 16, 20),
    Sketcher.Constraint("Equal", 18, 22),
    Sketcher.Constraint("Equal", 20, 24),
    Sketcher.Constraint("Equal", 46, 64),
    Sketcher.Constraint("DistanceX", 1, 1, 1, 2, 2.0),
    Sketcher.Constraint("DistanceX", 37, 2, 37, 1, 1.3),
    Sketcher.Constraint("DistanceX", -1, 1, 15, 2, 57.0),
    Sketcher.Constraint("DistanceX", 7, 1, 7, 2, 12.05),
    Sketcher.Constraint("DistanceX", 15, 1, 15, 2, 11.55),
    Sketcher.Constraint("DistanceY", 0, 2, 0, 1, 51.95),
    Sketcher.Constraint("DistanceY", 18, 1, 18, 2, 15.05),
    Sketcher.Constraint("DistanceX", -1, 1, 0, 2, 1.3),
    Sketcher.Constraint("DistanceY", -1, 1, 64, 2, 52.45),
])
pocket2 = body.newObject("PartDesign::Pocket", "Pocket001")
pocket2.Profile = sketch3
pocket2.Length = 6
body2 = doc.addObject("PartDesign::Body", "Body001")
doc.recompute()

body.Placement = App.Placement(App.Vector(75, 4, -2), App.Rotation(App.Vector(0, 0, 1), 90))
boolean = body2.newObject("PartDesign::Boolean", "Boolean")
boolean.Type = "Fuse"
boolean.addObjects([body])

doc.recompute()
